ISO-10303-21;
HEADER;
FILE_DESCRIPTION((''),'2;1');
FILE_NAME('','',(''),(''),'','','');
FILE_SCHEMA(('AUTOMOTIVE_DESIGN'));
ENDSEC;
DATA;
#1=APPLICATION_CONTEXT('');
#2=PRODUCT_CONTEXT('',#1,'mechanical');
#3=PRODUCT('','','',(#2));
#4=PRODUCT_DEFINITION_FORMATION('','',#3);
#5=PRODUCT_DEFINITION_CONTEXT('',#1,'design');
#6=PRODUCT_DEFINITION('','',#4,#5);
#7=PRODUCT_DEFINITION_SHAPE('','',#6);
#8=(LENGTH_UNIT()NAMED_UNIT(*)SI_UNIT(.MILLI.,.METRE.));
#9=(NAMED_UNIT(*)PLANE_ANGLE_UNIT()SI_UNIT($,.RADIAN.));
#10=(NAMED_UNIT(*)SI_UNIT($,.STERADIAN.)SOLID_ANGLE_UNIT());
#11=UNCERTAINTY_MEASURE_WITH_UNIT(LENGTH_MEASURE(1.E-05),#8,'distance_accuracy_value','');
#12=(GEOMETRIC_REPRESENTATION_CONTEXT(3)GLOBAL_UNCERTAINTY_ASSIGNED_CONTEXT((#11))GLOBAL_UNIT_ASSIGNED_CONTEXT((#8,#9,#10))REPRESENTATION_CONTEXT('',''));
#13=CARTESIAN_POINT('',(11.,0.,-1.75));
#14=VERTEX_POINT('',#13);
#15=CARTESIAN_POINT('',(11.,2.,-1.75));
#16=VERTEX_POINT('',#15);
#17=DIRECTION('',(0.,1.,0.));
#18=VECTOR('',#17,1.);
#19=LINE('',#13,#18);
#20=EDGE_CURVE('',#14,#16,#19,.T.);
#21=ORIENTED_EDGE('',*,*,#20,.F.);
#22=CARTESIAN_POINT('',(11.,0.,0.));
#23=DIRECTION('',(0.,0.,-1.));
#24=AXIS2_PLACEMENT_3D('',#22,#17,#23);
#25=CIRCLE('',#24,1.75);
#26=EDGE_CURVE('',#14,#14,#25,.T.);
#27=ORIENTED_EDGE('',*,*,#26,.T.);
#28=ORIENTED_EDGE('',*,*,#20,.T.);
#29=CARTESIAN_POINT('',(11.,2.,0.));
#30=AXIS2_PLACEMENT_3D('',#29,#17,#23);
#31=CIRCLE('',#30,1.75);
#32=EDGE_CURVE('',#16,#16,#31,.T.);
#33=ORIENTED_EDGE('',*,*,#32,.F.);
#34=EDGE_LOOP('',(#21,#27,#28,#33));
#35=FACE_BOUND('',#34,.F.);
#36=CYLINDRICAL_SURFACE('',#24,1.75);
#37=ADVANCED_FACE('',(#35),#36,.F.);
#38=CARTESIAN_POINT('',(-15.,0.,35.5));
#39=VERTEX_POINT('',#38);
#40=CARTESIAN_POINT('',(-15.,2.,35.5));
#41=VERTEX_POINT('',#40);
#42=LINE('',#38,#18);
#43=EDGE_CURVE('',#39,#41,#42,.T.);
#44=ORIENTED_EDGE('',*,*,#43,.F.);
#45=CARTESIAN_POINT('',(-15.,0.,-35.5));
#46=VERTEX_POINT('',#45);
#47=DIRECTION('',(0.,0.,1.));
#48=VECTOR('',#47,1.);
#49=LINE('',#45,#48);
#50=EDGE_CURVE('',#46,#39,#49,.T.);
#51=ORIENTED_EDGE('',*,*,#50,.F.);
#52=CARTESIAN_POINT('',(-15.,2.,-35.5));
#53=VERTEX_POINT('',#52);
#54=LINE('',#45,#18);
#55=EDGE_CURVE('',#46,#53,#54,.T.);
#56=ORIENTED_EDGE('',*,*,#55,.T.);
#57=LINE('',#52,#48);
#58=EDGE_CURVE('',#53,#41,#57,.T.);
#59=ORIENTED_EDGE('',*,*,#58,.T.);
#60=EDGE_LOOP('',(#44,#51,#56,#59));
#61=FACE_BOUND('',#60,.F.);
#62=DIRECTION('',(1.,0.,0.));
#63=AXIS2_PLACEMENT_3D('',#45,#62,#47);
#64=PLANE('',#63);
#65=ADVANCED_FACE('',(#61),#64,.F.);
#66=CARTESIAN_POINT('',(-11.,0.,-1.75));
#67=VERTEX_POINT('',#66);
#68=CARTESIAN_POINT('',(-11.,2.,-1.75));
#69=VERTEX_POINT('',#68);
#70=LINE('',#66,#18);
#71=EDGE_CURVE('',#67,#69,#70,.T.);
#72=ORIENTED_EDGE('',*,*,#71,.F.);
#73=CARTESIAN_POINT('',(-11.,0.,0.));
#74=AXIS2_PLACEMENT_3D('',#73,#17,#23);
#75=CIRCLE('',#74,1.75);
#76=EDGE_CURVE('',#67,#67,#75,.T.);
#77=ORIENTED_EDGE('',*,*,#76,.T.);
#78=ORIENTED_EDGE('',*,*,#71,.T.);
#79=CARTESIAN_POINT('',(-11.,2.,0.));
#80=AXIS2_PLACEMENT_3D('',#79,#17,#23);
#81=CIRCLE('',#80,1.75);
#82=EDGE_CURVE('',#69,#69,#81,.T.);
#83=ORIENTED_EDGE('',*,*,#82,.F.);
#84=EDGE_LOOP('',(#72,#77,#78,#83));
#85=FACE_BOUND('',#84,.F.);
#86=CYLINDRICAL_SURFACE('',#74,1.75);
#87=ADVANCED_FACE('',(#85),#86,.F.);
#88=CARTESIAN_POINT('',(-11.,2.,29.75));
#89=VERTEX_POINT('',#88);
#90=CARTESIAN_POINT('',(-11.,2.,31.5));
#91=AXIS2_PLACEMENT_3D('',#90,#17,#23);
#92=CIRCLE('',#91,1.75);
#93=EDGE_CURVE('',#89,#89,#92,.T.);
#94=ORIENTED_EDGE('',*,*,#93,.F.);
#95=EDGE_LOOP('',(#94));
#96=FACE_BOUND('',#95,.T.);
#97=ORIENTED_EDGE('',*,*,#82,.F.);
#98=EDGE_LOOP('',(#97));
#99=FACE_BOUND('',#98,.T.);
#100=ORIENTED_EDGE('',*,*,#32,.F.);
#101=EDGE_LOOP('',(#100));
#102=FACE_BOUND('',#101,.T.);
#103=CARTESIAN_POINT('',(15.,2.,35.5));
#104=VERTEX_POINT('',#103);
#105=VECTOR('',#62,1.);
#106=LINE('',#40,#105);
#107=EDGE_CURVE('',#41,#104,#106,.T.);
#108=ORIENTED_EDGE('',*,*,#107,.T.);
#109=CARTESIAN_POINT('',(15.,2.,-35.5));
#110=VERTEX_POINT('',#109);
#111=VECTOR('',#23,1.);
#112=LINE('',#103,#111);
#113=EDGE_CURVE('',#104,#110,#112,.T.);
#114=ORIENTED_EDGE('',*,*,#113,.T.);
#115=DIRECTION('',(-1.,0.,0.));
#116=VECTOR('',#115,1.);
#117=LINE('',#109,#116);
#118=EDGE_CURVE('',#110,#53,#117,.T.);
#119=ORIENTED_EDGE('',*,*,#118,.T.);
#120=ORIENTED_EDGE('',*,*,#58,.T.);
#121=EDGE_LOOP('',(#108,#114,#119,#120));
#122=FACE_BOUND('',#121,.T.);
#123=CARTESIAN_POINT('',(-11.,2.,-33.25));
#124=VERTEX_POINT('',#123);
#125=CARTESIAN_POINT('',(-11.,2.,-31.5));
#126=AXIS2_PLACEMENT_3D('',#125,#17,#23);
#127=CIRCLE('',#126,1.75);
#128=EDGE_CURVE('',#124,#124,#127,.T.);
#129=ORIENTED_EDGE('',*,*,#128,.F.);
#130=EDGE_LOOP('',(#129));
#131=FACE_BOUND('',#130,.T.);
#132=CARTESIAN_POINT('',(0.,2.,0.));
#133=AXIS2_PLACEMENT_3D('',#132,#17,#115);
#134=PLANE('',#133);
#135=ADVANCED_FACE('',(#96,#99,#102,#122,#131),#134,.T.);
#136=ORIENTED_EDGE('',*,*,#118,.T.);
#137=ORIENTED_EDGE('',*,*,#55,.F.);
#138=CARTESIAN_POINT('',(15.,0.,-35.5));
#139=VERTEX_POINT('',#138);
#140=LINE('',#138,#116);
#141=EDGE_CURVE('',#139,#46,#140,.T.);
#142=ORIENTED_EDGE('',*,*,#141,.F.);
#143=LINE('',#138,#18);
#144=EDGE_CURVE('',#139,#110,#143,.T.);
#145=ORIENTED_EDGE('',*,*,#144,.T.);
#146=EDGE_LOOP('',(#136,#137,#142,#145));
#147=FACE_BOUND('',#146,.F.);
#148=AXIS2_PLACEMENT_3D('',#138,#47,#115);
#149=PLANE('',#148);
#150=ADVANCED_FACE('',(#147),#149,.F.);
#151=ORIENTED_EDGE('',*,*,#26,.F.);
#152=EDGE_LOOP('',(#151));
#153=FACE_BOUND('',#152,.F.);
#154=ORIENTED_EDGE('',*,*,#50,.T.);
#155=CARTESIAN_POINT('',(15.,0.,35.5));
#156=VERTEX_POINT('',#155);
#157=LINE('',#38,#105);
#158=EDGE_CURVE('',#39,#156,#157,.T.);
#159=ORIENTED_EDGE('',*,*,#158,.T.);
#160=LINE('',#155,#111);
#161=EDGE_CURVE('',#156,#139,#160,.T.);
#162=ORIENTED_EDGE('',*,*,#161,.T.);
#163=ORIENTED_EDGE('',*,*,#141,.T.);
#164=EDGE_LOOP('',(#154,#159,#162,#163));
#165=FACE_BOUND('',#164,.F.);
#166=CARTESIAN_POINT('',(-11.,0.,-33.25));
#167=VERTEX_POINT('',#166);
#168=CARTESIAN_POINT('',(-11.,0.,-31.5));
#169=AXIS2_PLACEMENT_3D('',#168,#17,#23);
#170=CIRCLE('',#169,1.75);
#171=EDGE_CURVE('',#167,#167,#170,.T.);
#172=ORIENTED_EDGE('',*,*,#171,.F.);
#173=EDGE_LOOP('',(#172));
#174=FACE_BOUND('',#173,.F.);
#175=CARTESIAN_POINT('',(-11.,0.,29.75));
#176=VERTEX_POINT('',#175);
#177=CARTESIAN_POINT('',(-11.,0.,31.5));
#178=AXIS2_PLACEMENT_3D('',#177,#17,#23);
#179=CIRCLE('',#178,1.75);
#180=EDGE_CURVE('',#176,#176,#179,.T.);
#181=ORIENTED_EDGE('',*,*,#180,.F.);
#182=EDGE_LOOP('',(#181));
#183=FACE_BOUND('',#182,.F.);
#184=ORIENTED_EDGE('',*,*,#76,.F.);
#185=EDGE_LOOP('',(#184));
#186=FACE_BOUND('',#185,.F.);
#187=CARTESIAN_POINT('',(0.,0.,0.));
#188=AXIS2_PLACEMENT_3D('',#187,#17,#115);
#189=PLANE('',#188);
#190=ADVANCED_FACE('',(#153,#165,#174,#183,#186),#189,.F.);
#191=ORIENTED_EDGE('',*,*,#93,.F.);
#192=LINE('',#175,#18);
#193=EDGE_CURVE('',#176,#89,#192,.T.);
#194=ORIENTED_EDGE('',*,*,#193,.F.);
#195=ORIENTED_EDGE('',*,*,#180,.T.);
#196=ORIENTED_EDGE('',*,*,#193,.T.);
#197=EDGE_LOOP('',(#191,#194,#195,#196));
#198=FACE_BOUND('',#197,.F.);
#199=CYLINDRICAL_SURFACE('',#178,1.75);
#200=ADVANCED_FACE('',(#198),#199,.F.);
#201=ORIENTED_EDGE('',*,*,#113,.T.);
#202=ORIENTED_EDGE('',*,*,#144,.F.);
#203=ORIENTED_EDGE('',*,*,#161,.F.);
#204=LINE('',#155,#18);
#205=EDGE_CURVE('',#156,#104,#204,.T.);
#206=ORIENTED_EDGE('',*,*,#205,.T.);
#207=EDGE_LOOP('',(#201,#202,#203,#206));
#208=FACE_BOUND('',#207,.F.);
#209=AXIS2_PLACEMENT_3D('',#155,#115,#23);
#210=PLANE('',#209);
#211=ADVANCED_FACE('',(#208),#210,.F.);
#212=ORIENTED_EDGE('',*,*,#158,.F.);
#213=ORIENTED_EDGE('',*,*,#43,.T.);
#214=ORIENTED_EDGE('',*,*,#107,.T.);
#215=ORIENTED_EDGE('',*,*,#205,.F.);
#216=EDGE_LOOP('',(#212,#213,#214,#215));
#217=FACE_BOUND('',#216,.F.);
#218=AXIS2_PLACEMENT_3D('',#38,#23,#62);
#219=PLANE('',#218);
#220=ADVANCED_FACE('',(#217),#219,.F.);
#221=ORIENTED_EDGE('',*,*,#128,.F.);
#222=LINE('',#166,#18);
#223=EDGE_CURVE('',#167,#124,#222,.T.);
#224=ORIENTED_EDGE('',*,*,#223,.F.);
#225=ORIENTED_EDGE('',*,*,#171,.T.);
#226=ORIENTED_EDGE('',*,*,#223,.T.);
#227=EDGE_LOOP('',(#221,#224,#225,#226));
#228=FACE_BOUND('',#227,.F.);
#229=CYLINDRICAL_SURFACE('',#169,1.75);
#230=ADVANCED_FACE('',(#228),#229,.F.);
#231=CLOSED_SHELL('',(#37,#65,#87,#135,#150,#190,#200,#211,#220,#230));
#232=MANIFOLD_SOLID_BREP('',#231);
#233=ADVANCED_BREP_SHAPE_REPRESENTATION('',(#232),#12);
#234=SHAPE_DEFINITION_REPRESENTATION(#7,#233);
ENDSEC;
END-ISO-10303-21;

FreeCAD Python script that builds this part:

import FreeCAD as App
import Part
import Sketcher


def add_polygon(sketch, points):
    """Adds a closed chain of lines whose ends are joined by coincident constraints."""
    first, n = sketch.GeometryCount, len(points)
    for a, b in zip(points, points[1:] + points[:1]):
        sketch.addGeometry(Part.LineSegment(App.Vector(*a, 0), App.Vector(*b, 0)), False)
    for i in range(n):
        sketch.addConstraint(Sketcher.Constraint("Coincident", first + i, 2, first + (i + 1) % n, 1))

doc = App.newDocument("Part")
body = doc.addObject("PartDesign::Body", "Body")

sketch1 = body.newObject("Sketcher::SketchObject", "Sketch")
sketch1.AttachmentSupport = (doc.getObject("XZ_Plane"), [""])
sketch1.MapMode = "FlatFace"
add_polygon(sketch1, [(15, 35.5), (15, -35.5), (-15, -35.5), (-15, 35.5)])
sketch1.addConstraint([
    Sketcher.Constraint("Vertical", 0),
    Sketcher.Constraint("Horizontal", 1),
    Sketcher.Constraint("Vertical", 2),
    Sketcher.Constraint("Horizontal", 3),
    Sketcher.Constraint("Symmetric", 0, 2, 2, 2, -1, 1),
    Sketcher.Constraint("DistanceX", 1, 2, 1, 1, 30.0),
    Sketcher.Constraint("DistanceY", 0, 2, 0, 1, 71.0),
])
pad1 = body.newObject("PartDesign::Pad", "Pad")
pad1.Profile = sketch1
pad1.Length = 2
pad1.Reversed = True

sketch2 = body.newObject("Sketcher::SketchObject", "Sketch001")
sketch2.AttachmentSupport = (doc.getObject("XZ_Plane"), [""])
sketch2.MapMode = "FlatFace"
sketch2.addGeometry([
    Part.Circle(App.Vector(11, 0, 0), App.Vector(0, 0, 1), 1.75),
    Part.Circle(App.Vector(-11, 0, 0), App.Vector(0, 0, 1), 1.75),
    Part.Circle(App.Vector(-11, 31.5, 0), App.Vector(0, 0, 1), 1.75),
    Part.Circle(App.Vector(-11, -31.5, 0), App.Vector(0, 0, 1), 1.75),
], False)
sketch2.addConstraint([
    Sketcher.Constraint("Equal", 0, 1),
    Sketcher.Constraint("Equal", 1, 2),
    Sketcher.Constraint("Equal", 2, 3),
    Sketcher.Constraint("Symmetric", 0, 3, 1, 3, -1, 1),
    Sketcher.Constraint("Symmetric", 2, 3, 3, 3, -1),
    Sketcher.Constraint("PointOnObject", 0, 3, -1),
    Sketcher.Constraint("Vertical", 1, 3, 2, 3),
    Sketcher.Constraint("Diameter", 0, 3.5),
    Sketcher.Constraint("DistanceX", -1, 1, 0, 3, 11.0),
    Sketcher.Constraint("DistanceY", 3, 3, 2, 3, 63.0),
])
doc.recompute()
hole = body.newObject("PartDesign::Hole", "Hole")
hole.Profile = sketch2
hole.ThreadType = "None"
hole.Diameter = 3.5
hole.DepthType = "ThroughAll"

doc.recompute()
